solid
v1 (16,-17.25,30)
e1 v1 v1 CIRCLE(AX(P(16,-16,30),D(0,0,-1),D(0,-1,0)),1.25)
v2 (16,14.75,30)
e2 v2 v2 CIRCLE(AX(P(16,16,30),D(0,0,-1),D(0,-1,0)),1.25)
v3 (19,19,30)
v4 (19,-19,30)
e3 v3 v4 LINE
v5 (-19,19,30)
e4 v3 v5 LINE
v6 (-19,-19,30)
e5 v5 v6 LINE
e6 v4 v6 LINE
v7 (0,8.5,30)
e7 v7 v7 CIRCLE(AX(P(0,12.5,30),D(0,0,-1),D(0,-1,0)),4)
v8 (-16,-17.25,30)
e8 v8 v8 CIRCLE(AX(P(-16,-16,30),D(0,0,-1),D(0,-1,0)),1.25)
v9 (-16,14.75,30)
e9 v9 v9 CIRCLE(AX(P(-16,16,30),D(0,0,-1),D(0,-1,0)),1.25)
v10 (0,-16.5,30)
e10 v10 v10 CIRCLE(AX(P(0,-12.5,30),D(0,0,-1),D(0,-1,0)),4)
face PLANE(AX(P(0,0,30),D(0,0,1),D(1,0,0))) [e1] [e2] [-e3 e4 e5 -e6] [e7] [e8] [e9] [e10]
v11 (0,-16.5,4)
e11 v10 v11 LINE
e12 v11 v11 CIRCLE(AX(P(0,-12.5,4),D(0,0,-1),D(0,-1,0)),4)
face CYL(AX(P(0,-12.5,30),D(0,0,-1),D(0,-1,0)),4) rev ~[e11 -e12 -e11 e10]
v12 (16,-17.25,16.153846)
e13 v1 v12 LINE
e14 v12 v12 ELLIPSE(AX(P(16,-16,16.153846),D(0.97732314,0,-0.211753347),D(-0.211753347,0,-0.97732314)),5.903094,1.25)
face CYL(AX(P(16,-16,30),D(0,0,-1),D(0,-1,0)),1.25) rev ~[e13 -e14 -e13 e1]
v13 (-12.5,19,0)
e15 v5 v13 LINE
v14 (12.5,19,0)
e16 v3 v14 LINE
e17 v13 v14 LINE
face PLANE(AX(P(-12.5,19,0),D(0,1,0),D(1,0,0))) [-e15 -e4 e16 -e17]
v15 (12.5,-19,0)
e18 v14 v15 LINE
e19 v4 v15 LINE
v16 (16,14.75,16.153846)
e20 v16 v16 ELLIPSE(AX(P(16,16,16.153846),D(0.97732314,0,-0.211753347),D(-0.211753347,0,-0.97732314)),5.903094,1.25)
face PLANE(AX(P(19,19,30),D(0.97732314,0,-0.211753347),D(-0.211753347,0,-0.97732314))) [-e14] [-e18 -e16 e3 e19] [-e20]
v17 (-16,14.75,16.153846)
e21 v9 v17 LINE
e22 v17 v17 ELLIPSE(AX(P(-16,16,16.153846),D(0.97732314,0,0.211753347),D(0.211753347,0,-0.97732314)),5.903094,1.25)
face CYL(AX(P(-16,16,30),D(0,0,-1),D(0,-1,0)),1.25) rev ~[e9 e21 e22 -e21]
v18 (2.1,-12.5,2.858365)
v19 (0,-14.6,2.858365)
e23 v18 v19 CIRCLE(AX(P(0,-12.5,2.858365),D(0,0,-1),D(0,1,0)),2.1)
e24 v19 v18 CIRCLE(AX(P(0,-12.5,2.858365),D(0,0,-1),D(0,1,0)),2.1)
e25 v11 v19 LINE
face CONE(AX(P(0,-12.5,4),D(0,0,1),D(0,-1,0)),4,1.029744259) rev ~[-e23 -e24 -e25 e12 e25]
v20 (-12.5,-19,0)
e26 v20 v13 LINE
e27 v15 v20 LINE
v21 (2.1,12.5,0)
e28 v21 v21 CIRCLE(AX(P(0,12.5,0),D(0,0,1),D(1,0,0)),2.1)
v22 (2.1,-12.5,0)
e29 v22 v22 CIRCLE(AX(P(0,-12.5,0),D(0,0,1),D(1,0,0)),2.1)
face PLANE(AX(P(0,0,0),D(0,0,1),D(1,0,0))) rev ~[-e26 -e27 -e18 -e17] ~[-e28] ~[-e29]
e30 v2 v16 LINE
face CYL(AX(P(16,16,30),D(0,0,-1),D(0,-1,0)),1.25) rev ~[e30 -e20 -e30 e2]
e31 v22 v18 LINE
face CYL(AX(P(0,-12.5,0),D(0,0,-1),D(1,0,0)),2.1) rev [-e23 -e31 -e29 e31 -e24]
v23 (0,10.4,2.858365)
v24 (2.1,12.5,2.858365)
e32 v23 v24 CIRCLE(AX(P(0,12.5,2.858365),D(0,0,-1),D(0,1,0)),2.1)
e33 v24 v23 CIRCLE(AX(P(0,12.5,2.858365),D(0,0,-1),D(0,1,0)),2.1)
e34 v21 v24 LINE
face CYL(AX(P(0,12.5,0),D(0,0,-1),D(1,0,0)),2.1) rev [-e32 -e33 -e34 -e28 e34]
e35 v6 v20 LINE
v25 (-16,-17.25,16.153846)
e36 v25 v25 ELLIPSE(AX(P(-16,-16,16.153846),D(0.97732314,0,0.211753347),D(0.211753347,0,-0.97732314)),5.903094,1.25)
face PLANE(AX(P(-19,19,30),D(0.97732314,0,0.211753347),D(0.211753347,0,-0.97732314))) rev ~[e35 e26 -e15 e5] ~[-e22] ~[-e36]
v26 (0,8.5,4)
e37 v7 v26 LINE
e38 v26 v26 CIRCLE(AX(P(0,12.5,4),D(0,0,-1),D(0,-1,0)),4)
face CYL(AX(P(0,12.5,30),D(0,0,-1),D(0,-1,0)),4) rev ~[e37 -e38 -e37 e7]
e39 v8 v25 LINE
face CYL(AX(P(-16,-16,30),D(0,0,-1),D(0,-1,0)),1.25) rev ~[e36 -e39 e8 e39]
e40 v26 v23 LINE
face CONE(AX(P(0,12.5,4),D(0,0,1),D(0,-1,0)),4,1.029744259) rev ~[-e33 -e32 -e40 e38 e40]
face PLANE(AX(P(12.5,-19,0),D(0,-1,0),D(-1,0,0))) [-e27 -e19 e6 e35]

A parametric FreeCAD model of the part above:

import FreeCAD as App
import Part
import Sketcher

V = App.Vector
Q = App.Units.Quantity

doc = App.newDocument("Part")
body = doc.addObject("PartDesign::Body", "Body")

sketch1 = body.newObject("Sketcher::SketchObject", "Sketch")
sketch1.AttachmentSupport = (doc.getObject("XY_Plane"), [""])
sketch1.MapMode = "FlatFace"
sketch1.addGeometry(Part.LineSegment(V(-12.5, -19, 0), V(12.5, -19, 0)), False)
sketch1.addGeometry(Part.LineSegment(V(12.5, -19, 0), V(12.5, 19, 0)), False)
sketch1.addGeometry(Part.LineSegment(V(12.5, 19, 0), V(-12.5, 19, 0)), False)
sketch1.addGeometry(Part.LineSegment(V(-12.5, 19, 0), V(-12.5, -19, 0)), False)
sketch1.addGeometry(Part.Circle(V(0, -12.5, 0), V(0, 0, 1), 2.1), False)
sketch1.addGeometry(Part.Circle(V(0, 12.5, 0), V(0, 0, 1), 2.1), False)
sketch1.addConstraint(Sketcher.Constraint("Coincident", 0, 2, 1, 1))
sketch1.addConstraint(Sketcher.Constraint("Coincident", 1, 2, 2, 1))
sketch1.addConstraint(Sketcher.Constraint("Coincident", 2, 2, 3, 1))
sketch1.addConstraint(Sketcher.Constraint("Coincident", 3, 2, 0, 1))
sketch1.addConstraint(Sketcher.Constraint("Horizontal", 0))
sketch1.addConstraint(Sketcher.Constraint("Vertical", 1))
sketch1.addConstraint(Sketcher.Constraint("Horizontal", 2))
sketch1.addConstraint(Sketcher.Constraint("Vertical", 3))
sketch1.addConstraint(Sketcher.Constraint("Equal", 4, 5))
sketch1.addConstraint(Sketcher.Constraint("Symmetric", 4, 3, 5, 3, -1, 1))
sketch1.addConstraint(Sketcher.Constraint("Symmetric", 0, 2, 2, 2, -1, 1))
sketch1.addConstraint(Sketcher.Constraint("PointOnObject", 4, 3, -2))
sketch1.addConstraint(Sketcher.Constraint("Diameter", 4, Q("4.2 mm")))
sketch1.addConstraint(Sketcher.Constraint("DistanceX", 0, 1, 0, 2, Q("25 mm")))
sketch1.addConstraint(Sketcher.Constraint("DistanceY", 1, 1, 1, 2, Q("38 mm")))
sketch1.addConstraint(Sketcher.Constraint("DistanceY", 4, 3, 5, 3, Q("25 mm")))
pad1 = body.newObject("PartDesign::Pad", "Pad")
pad1.Profile = sketch1
pad1.Length = 30

sketch2 = body.newObject("Sketcher::SketchObject", "Sketch001")
sketch2.AttachmentSupport = (doc.getObject("XZ_Plane"), [""])
sketch2.MapMode = "FlatFace"
sketch2.AttachmentOffset = App.Placement(V(0, 0, -19), App.Rotation())
sketch2.addGeometry(Part.LineSegment(V(12.5, 0, 0), V(12.5, 30, 0)), False)
sketch2.addGeometry(Part.LineSegment(V(12.5, 30, 0), V(19, 30, 0)), False)
sketch2.addGeometry(Part.LineSegment(V(19, 30, 0), V(12.5, 0, 0)), False)
sketch2.addGeometry(Part.LineSegment(V(-12.5, 30, 0), V(-12.5, 0, 0)), False)
sketch2.addGeometry(Part.LineSegment(V(-12.5, 0, 0), V(-19, 30, 0)), False)
sketch2.addGeometry(Part.LineSegment(V(-19, 30, 0), V(-12.5, 30, 0)), False)
sketch2.addConstraint(Sketcher.Constraint("Coincident", 0, 2, 1, 1))
sketch2.addConstraint(Sketcher.Constraint("Coincident", 1, 2, 2, 1))
sketch2.addConstraint(Sketcher.Constraint("Coincident", 2, 2, 0, 1))
sketch2.addConstraint(Sketcher.Constraint("Coincident", 3, 2, 4, 1))
sketch2.addConstraint(Sketcher.Constraint("Coincident", 4, 2, 5, 1))
sketch2.addConstraint(Sketcher.Constraint("Coincident", 5, 2, 3, 1))
sketch2.addConstraint(Sketcher.Constraint("Vertical", 0))
sketch2.addConstraint(Sketcher.Constraint("Horizontal", 1))
sketch2.addConstraint(Sketcher.Constraint("Vertical", 3))
sketch2.addConstraint(Sketcher.Constraint("Horizontal", 5))
sketch2.addConstraint(Sketcher.Constraint("Symmetric", 2, 2, 3, 2, -1, 1))
sketch2.addConstraint(Sketcher.Constraint("Symmetric", 1, 2, 4, 2, -2))
sketch2.addConstraint(Sketcher.Constraint("PointOnObject", 2, 2, -1))
sketch2.addConstraint(Sketcher.Constraint("DistanceX", 1, 1, 1, 2, Q("6.5 mm")))
sketch2.addConstraint(Sketcher.Constraint("DistanceY", 0, 1, 0, 2, Q("30 mm")))
sketch2.addConstraint(Sketcher.Constraint("DistanceX", -1, 1, 1, 2, Q("19 mm")))
pad2 = body.newObject("PartDesign::Pad", "Pad001")
pad2.Profile = sketch2
pad2.Length = 38

sketch3 = body.newObject("Sketcher::SketchObject", "Sketch002")
sketch3.AttachmentSupport = (doc.getObject("XY_Plane"), [""])
sketch3.MapMode = "FlatFace"
sketch3.AttachmentOffset = App.Placement(V(0, 0, 30), App.Rotation())
sketch3.addGeometry(Part.Circle(V(-16, 16, 0), V(0, 0, 1), 1.25), False)
sketch3.addGeometry(Part.Circle(V(16, 16, 0), V(0, 0, 1), 1.25), False)
sketch3.addGeometry(Part.Circle(V(-16, -16, 0), V(0, 0, 1), 1.25), False)
sketch3.addGeometry(Part.Circle(V(16, -16, 0), V(0, 0, 1), 1.25), False)
sketch3.addConstraint(Sketcher.Constraint("Equal", 0, 1))
sketch3.addConstraint(Sketcher.Constraint("Equal", 1, 2))
sketch3.addConstraint(Sketcher.Constraint("Equal", 2, 3))
sketch3.addConstraint(Sketcher.Constraint("Symmetric", 1, 3, 2, 3, -1, 1))
sketch3.addConstraint(Sketcher.Constraint("Symmetric", 0, 3, 3, 3, -1, 1))
sketch3.addConstraint(Sketcher.Constraint("Symmetric", 0, 3, 1, 3, -2))
sketch3.addConstraint(Sketcher.Constraint("Diameter", 0, Q("2.5 mm")))
sketch3.addConstraint(Sketcher.Constraint("DistanceX", 0, 3, -1, 1, Q("16 mm")))
sketch3.addConstraint(Sketcher.Constraint("DistanceY", -1, 1, 0, 3, Q("16 mm")))
doc.recompute()
hole = body.newObject("PartDesign::Hole", "Hole")
hole.Profile = sketch3
hole.ThreadType = "None"
hole.Diameter = 2.5
hole.DepthType = "Dimension"
hole.Depth = 20
hole.DrillPoint = "Angled"
hole.DrillPointAngle = 118

sketch4 = body.newObject("Sketcher::SketchObject", "Sketch003")
sketch4.AttachmentSupport = (doc.getObject("XY_Plane"), [""])
sketch4.MapMode = "FlatFace"
sketch4.AttachmentOffset = App.Placement(V(0, 0, 30), App.Rotation())
sketch4.addGeometry(Part.Circle(V(0, -12.5, 0), V(0, 0, 1), 4), False)
sketch4.addConstraint(Sketcher.Constraint("PointOnObject", 0, 3, -2))
sketch4.addConstraint(Sketcher.Constraint("Diameter", 0, Q("8 mm")))
sketch4.addConstraint(Sketcher.Constraint("DistanceY", 0, 3, -1, 1, Q("12.5 mm")))
doc.recompute()
hole2 = body.newObject("PartDesign::Hole", "Hole001")
hole2.Profile = sketch4
hole2.ThreadType = "None"
hole2.Diameter = 8
hole2.DepthType = "Dimension"
hole2.Depth = 26
hole2.DrillPoint = "Angled"
hole2.DrillPointAngle = 118

sketch5 = body.newObject("Sketcher::SketchObject", "Sketch004")
sketch5.AttachmentSupport = (doc.getObject("XY_Plane"), [""])
sketch5.MapMode = "FlatFace"
sketch5.AttachmentOffset = App.Placement(V(0, 0, 30), App.Rotation())
sketch5.addGeometry(Part.Circle(V(0, 12.5, 0), V(0, 0, 1), 4), False)
sketch5.addConstraint(Sketcher.Constraint("PointOnObject", 0, 3, -2))
sketch5.addConstraint(Sketcher.Constraint("Diameter", 0, Q("8 mm")))
sketch5.addConstraint(Sketcher.Constraint("DistanceY", -1, 1, 0, 3, Q("12.5 mm")))
doc.recompute()
hole3 = body.newObject("PartDesign::Hole", "Hole002")
hole3.Profile = sketch5
hole3.ThreadType = "None"
hole3.Diameter = 8
hole3.DepthType = "Dimension"
hole3.Depth = 26
hole3.DrillPoint = "Angled"
hole3.DrillPointAngle = 118

doc.recompute()
